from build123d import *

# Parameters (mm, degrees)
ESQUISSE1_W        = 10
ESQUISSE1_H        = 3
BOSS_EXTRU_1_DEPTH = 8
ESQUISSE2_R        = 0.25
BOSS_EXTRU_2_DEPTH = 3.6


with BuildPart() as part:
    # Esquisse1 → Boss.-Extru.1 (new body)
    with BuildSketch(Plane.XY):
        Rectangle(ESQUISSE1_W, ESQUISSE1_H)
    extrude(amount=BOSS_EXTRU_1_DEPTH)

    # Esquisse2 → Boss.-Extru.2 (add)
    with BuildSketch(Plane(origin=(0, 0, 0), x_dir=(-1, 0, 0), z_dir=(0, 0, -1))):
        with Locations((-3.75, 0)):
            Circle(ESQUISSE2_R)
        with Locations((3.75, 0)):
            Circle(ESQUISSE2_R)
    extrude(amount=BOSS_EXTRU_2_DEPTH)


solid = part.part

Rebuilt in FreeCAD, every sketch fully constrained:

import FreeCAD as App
import Part
import Sketcher
from FreeCAD import Vector

doc = App.newDocument("Part")
params = doc.addObject("Spreadsheet::Sheet", "Params")
for row, (alias, value) in enumerate([
    ("sketch1_width", "10 mm"),
    ("sketch1_height", "3 mm"),
    ("pad1_length", "8 mm"),
    ("sketch2_diameter", "0.5 mm"),
    ("pad2_length", "3.6 mm"),
], start=1):
    params.set(f"A{row}", alias)
    params.set(f"B{row}", "=" + value)
    params.setAlias(f"B{row}", alias)

body = doc.addObject("PartDesign::Body", "Body")

# Sketch on XY plane
sketch1 = body.newObject("Sketcher::SketchObject", "Sketch")
sketch1.AttachmentSupport = (doc.getObject("XY_Plane"), [""])
sketch1.MapMode = "FlatFace"
sketch1.addGeometry([
    Part.LineSegment(Vector(-5, 1.5, 0), Vector(-5, -1.5, 0)),
    Part.LineSegment(Vector(-5, -1.5, 0), Vector(5, -1.5, 0)),
    Part.LineSegment(Vector(5, -1.5, 0), Vector(5, 1.5, 0)),
    Part.LineSegment(Vector(5, 1.5, 0), Vector(-5, 1.5, 0)),
], False)
sketch1.addConstraint([
    Sketcher.Constraint("Coincident", 0, 2, 1, 1),
    Sketcher.Constraint("Coincident", 1, 2, 2, 1),
    Sketcher.Constraint("Coincident", 2, 2, 3, 1),
    Sketcher.Constraint("Coincident", 3, 2, 0, 1),
    Sketcher.Constraint("Vertical", 0),
    Sketcher.Constraint("Horizontal", 1),
    Sketcher.Constraint("Vertical", 2),
    Sketcher.Constraint("Horizontal", 3),
    Sketcher.Constraint("Symmetric", 0, 2, 2, 2, -1, 1),
    Sketcher.Constraint("DistanceX", 1, 1, 1, 2, 10.0),
    Sketcher.Constraint("DistanceY", 0, 2, 0, 1, 3.0),
])
sketch1.setExpression("Constraints[9]", "Params.sketch1_width")
sketch1.setExpression("Constraints[10]", "Params.sketch1_height")
pad1 = body.newObject("PartDesign::Pad", "Pad")
pad1.Profile = sketch1
pad1.setExpression("Length", "Params.pad1_length")

# Sketch on XY plane
sketch2 = body.newObject("Sketcher::SketchObject", "Sketch001")
sketch2.AttachmentSupport = (doc.getObject("XY_Plane"), [""])
sketch2.MapMode = "FlatFace"
sketch2.addGeometry([
    Part.Circle(Vector(3.75, 0, 0), Vector(0, 0, 1), 0.25),
    Part.Circle(Vector(-3.75, 0, 0), Vector(0, 0, 1), 0.25),
], False)
sketch2.addConstraint([
    Sketcher.Constraint("Equal", 0, 1),
    Sketcher.Constraint("Symmetric", 0, 3, 1, 3, -1, 1),
    Sketcher.Constraint("PointOnObject", 0, 3, -1),
    Sketcher.Constraint("Diameter", 0, 0.5),
    Sketcher.Constraint("DistanceX", 1, 3, 0, 3, 7.5),
])
sketch2.setExpression("Constraints[3]", "Params.sketch2_diameter")
pad2 = body.newObject("PartDesign::Pad", "Pad001")
pad2.Profile = sketch2
pad2.setExpression("Length", "Params.pad2_length")
pad2.Reversed = True

doc.recompute()
